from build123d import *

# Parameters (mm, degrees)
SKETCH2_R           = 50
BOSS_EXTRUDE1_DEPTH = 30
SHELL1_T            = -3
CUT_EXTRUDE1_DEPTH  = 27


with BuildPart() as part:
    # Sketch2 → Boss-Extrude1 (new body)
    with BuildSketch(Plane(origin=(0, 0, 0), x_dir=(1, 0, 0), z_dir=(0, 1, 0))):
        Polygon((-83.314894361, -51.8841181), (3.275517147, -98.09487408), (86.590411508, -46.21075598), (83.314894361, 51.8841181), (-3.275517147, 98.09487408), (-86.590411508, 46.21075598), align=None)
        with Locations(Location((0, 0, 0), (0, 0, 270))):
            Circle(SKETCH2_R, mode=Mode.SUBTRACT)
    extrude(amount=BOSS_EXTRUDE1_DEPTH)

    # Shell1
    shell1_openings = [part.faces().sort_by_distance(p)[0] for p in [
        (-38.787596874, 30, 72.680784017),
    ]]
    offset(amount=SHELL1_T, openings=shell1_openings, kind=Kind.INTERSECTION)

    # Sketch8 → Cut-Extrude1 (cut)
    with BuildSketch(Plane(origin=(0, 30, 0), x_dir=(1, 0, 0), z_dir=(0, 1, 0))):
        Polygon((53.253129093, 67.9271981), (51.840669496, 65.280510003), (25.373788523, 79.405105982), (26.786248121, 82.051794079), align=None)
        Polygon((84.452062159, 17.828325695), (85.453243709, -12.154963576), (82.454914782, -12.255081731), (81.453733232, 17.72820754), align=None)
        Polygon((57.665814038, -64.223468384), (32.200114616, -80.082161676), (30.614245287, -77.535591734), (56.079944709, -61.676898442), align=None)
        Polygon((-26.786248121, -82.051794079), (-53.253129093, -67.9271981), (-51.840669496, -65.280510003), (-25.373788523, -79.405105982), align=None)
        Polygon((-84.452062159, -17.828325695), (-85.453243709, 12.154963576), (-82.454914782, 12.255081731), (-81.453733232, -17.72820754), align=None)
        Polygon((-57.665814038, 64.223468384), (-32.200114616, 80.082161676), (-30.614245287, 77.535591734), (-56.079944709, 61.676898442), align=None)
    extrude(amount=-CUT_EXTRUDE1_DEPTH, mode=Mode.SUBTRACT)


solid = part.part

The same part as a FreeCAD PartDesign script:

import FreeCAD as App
import Part
import Sketcher

V = App.Vector
Q = App.Units.Quantity


def faces_at(feature, points):
    """Names of the faces that lie closest to the given points."""
    faces = feature.Shape.Faces
    near = lambda p: min(range(len(faces)), key=lambda i: faces[i].distToShape(Part.Vertex(*p))[0])
    return sorted({f"Face{near(p) + 1}" for p in points})


def add_polygon(sketch, points):
    """Adds a closed chain of lines whose ends are joined by coincident constraints."""
    first, n = sketch.GeometryCount, len(points)
    for a, b in zip(points, points[1:] + points[:1]):
        sketch.addGeometry(Part.LineSegment(App.Vector(*a, 0), App.Vector(*b, 0)), False)
    for i in range(n):
        sketch.addConstraint(Sketcher.Constraint("Coincident", first + i, 2, first + (i + 1) % n, 1))

doc = App.newDocument("Part")
params = doc.addObject("Spreadsheet::Sheet", "Params")
for row, (alias, value) in enumerate([
    ("sketch1_diameter", "100 mm"),
    ("pad1_length", "30 mm"),
    ("thickness_wall", "3 mm"),
    ("sketch2_length", "3 mm"),
    ("sketch2_length2", "30 mm"),
    ("pocket1_length", "27 mm"),
], start=1):
    params.set(f"A{row}", alias)
    params.set(f"B{row}", "=" + value)
    params.setAlias(f"B{row}", alias)

body = doc.addObject("PartDesign::Body", "Body")

# Sketch on XZ plane
sketch1 = body.newObject("Sketcher::SketchObject", "Sketch")
sketch1.AttachmentSupport = (doc.getObject("XZ_Plane"), [""])
sketch1.MapMode = "FlatFace"
add_polygon(sketch1, [(-83, 52), (3, 98), (87, 46), (83, -52), (-3, -98), (-87, -46)])  # lines 0-5
sketch1.addGeometry(Part.Circle(V(0, 0, 0), V(0, 0, 1), 50), False)  # 6
sketch1.addConstraint(Sketcher.Constraint("Coincident", 6, 3, -1, 1))
sketch1.addConstraint(Sketcher.Constraint("Symmetric", 0, 2, 3, 2, -1, 1))
sketch1.addConstraint(Sketcher.Constraint("Symmetric", 1, 2, 4, 2, -1, 1))
sketch1.addConstraint(Sketcher.Constraint("Symmetric", 2, 2, 5, 2, -1, 1))
sketch1.addConstraint(Sketcher.Constraint("Equal", 0, 1))
sketch1.addConstraint(Sketcher.Constraint("Equal", 1, 2))
sketch1.addConstraint(Sketcher.Constraint("Diameter", 6, Q("100 mm")))
sketch1.addConstraint(Sketcher.Constraint("DistanceX", -1, 1, 1, 2, Q("86.590412 mm")))
sketch1.addConstraint(Sketcher.Constraint("DistanceY", 2, 2, -1, 1, Q("51.884118 mm")))
sketch1.addConstraint(Sketcher.Constraint("DistanceY", 1, 2, 0, 2, Q("51.884118 mm")))
sketch1.addConstraint(Sketcher.Constraint("DistanceX", 3, 2, 2, 2, Q("86.590412 mm")))
sketch1.setExpression("Constraints[12]", "Params.sketch1_diameter")
pad1 = body.newObject("PartDesign::Pad", "Pad")
pad1.Profile = sketch1
pad1.setExpression("Length", "Params.pad1_length")
pad1.Reversed = True
doc.recompute()

thickness = body.newObject("PartDesign::Thickness", "Thickness")
thickness.Base = (pad1, faces_at(pad1, [(-34.636, 30, 39.238)]))
thickness.setExpression("Value", "Params.thickness_wall")
thickness.Reversed = True
thickness.Join = "Intersection"

# Sketch on XZ plane
sketch2 = body.newObject("Sketcher::SketchObject", "Sketch001")
sketch2.AttachmentSupport = (doc.getObject("XZ_Plane"), [""])
sketch2.MapMode = "FlatFace"
sketch2.AttachmentOffset = App.Placement(V(0, 0, -30), App.Rotation())
add_polygon(sketch2, [(51.8, -65.3), (53.3, -67.9), (26.8, -82.1), (25.4, -79.4)])  # lines 0-3
add_polygon(sketch2, [(85.5, 12.2), (84.5, -17.8), (81.5, -17.7), (82.5, 12.3)])  # lines 4-7
add_polygon(sketch2, [(32.2, 80.1), (57.7, 64.2), (56.1, 61.7), (30.6, 77.5)])  # lines 8-11
add_polygon(sketch2, [(-53.3, 67.9), (-26.8, 82.1), (-25.4, 79.4), (-51.8, 65.3)])  # lines 12-15
add_polygon(sketch2, [(-85.5, -12.2), (-84.5, 17.8), (-81.5, 17.7), (-82.5, -12.3)])  # lines 16-19
add_polygon(sketch2, [(-32.2, -80.1), (-57.7, -64.2), (-56.1, -61.7), (-30.6, -77.5)])  # lines 20-23
sketch2.addConstraint(Sketcher.Constraint("Symmetric", 1, 2, 12, 2, -1, 1))
sketch2.addConstraint(Sketcher.Constraint("Symmetric", 2, 2, 13, 2, -1, 1))
sketch2.addConstraint(Sketcher.Constraint("Symmetric", 3, 2, 14, 2, -1, 1))
sketch2.addConstraint(Sketcher.Constraint("Symmetric", 0, 2, 15, 2, -1, 1))
sketch2.addConstraint(Sketcher.Constraint("Symmetric", 4, 2, 16, 2, -1, 1))
sketch2.addConstraint(Sketcher.Constraint("Symmetric", 5, 2, 17, 2, -1, 1))
sketch2.addConstraint(Sketcher.Constraint("Symmetric", 6, 2, 18, 2, -1, 1))
sketch2.addConstraint(Sketcher.Constraint("Symmetric", 7, 2, 19, 2, -1, 1))
sketch2.addConstraint(Sketcher.Constraint("Symmetric", 8, 2, 20, 2, -1, 1))
sketch2.addConstraint(Sketcher.Constraint("Symmetric", 9, 2, 21, 2, -1, 1))
sketch2.addConstraint(Sketcher.Constraint("Symmetric", 10, 2, 22, 2, -1, 1))
sketch2.addConstraint(Sketcher.Constraint("Symmetric", 11, 2, 23, 2, -1, 1))
sketch2.addConstraint(Sketcher.Constraint("Perpendicular", 0, 1))
sketch2.addConstraint(Sketcher.Constraint("Perpendicular", 1, 2))
sketch2.addConstraint(Sketcher.Constraint("Perpendicular", 2, 3))
sketch2.addConstraint(Sketcher.Constraint("Perpendicular", 4, 5))
sketch2.addConstraint(Sketcher.Constraint("Perpendicular", 5, 6))
sketch2.addConstraint(Sketcher.Constraint("Perpendicular", 6, 7))
sketch2.addConstraint(Sketcher.Constraint("Perpendicular", 8, 9))
sketch2.addConstraint(Sketcher.Constraint("Perpendicular", 9, 10))
sketch2.addConstraint(Sketcher.Constraint("Perpendicular", 10, 11))
sketch2.addConstraint(Sketcher.Constraint("Equal", 3, 4))
sketch2.addConstraint(Sketcher.Constraint("Equal", 2, 5))
sketch2.addConstraint(Sketcher.Constraint("Equal", 6, 8))
sketch2.addConstraint(Sketcher.Constraint("Equal", 7, 9))
sketch2.addConstraint(Sketcher.Constraint("Distance", 0, Q("3 mm")))
sketch2.addConstraint(Sketcher.Constraint("Distance", 1, Q("30 mm")))
sketch2.addConstraint(Sketcher.Constraint("DistanceX", 10, 2, 7, 2, Q("54.838998 mm")))
sketch2.addConstraint(Sketcher.Constraint("DistanceY", 0, 2, -1, 1, Q("67.927198 mm")))
sketch2.addConstraint(Sketcher.Constraint("DistanceY", -1, 1, 9, 2, Q("61.676898 mm")))
sketch2.addConstraint(Sketcher.Constraint("DistanceY", 2, 2, 5, 2, Q("61.676898 mm")))
sketch2.addConstraint(Sketcher.Constraint("DistanceX", 8, 2, 6, 2, Q("24.789101 mm")))
sketch2.addConstraint(Sketcher.Constraint("DistanceY", 5, 2, 10, 2, Q("95.263799 mm")))
sketch2.addConstraint(Sketcher.Constraint("DistanceY", 7, 2, 11, 2, Q("67.927198 mm")))
sketch2.addConstraint(Sketcher.Constraint("DistanceX", -1, 1, 0, 2, Q("53.253129 mm")))
sketch2.addConstraint(Sketcher.Constraint("DistanceX", -1, 1, 4, 2, Q("84.452062 mm")))
sketch2.setExpression("Constraints[49]", "Params.sketch2_length")
sketch2.setExpression("Constraints[50]", "Params.sketch2_length2")
pocket1 = body.newObject("PartDesign::Pocket", "Pocket")
pocket1.Profile = sketch2
pocket1.setExpression("Length", "Params.pocket1_length")
pocket1.Reversed = True

doc.recompute()
